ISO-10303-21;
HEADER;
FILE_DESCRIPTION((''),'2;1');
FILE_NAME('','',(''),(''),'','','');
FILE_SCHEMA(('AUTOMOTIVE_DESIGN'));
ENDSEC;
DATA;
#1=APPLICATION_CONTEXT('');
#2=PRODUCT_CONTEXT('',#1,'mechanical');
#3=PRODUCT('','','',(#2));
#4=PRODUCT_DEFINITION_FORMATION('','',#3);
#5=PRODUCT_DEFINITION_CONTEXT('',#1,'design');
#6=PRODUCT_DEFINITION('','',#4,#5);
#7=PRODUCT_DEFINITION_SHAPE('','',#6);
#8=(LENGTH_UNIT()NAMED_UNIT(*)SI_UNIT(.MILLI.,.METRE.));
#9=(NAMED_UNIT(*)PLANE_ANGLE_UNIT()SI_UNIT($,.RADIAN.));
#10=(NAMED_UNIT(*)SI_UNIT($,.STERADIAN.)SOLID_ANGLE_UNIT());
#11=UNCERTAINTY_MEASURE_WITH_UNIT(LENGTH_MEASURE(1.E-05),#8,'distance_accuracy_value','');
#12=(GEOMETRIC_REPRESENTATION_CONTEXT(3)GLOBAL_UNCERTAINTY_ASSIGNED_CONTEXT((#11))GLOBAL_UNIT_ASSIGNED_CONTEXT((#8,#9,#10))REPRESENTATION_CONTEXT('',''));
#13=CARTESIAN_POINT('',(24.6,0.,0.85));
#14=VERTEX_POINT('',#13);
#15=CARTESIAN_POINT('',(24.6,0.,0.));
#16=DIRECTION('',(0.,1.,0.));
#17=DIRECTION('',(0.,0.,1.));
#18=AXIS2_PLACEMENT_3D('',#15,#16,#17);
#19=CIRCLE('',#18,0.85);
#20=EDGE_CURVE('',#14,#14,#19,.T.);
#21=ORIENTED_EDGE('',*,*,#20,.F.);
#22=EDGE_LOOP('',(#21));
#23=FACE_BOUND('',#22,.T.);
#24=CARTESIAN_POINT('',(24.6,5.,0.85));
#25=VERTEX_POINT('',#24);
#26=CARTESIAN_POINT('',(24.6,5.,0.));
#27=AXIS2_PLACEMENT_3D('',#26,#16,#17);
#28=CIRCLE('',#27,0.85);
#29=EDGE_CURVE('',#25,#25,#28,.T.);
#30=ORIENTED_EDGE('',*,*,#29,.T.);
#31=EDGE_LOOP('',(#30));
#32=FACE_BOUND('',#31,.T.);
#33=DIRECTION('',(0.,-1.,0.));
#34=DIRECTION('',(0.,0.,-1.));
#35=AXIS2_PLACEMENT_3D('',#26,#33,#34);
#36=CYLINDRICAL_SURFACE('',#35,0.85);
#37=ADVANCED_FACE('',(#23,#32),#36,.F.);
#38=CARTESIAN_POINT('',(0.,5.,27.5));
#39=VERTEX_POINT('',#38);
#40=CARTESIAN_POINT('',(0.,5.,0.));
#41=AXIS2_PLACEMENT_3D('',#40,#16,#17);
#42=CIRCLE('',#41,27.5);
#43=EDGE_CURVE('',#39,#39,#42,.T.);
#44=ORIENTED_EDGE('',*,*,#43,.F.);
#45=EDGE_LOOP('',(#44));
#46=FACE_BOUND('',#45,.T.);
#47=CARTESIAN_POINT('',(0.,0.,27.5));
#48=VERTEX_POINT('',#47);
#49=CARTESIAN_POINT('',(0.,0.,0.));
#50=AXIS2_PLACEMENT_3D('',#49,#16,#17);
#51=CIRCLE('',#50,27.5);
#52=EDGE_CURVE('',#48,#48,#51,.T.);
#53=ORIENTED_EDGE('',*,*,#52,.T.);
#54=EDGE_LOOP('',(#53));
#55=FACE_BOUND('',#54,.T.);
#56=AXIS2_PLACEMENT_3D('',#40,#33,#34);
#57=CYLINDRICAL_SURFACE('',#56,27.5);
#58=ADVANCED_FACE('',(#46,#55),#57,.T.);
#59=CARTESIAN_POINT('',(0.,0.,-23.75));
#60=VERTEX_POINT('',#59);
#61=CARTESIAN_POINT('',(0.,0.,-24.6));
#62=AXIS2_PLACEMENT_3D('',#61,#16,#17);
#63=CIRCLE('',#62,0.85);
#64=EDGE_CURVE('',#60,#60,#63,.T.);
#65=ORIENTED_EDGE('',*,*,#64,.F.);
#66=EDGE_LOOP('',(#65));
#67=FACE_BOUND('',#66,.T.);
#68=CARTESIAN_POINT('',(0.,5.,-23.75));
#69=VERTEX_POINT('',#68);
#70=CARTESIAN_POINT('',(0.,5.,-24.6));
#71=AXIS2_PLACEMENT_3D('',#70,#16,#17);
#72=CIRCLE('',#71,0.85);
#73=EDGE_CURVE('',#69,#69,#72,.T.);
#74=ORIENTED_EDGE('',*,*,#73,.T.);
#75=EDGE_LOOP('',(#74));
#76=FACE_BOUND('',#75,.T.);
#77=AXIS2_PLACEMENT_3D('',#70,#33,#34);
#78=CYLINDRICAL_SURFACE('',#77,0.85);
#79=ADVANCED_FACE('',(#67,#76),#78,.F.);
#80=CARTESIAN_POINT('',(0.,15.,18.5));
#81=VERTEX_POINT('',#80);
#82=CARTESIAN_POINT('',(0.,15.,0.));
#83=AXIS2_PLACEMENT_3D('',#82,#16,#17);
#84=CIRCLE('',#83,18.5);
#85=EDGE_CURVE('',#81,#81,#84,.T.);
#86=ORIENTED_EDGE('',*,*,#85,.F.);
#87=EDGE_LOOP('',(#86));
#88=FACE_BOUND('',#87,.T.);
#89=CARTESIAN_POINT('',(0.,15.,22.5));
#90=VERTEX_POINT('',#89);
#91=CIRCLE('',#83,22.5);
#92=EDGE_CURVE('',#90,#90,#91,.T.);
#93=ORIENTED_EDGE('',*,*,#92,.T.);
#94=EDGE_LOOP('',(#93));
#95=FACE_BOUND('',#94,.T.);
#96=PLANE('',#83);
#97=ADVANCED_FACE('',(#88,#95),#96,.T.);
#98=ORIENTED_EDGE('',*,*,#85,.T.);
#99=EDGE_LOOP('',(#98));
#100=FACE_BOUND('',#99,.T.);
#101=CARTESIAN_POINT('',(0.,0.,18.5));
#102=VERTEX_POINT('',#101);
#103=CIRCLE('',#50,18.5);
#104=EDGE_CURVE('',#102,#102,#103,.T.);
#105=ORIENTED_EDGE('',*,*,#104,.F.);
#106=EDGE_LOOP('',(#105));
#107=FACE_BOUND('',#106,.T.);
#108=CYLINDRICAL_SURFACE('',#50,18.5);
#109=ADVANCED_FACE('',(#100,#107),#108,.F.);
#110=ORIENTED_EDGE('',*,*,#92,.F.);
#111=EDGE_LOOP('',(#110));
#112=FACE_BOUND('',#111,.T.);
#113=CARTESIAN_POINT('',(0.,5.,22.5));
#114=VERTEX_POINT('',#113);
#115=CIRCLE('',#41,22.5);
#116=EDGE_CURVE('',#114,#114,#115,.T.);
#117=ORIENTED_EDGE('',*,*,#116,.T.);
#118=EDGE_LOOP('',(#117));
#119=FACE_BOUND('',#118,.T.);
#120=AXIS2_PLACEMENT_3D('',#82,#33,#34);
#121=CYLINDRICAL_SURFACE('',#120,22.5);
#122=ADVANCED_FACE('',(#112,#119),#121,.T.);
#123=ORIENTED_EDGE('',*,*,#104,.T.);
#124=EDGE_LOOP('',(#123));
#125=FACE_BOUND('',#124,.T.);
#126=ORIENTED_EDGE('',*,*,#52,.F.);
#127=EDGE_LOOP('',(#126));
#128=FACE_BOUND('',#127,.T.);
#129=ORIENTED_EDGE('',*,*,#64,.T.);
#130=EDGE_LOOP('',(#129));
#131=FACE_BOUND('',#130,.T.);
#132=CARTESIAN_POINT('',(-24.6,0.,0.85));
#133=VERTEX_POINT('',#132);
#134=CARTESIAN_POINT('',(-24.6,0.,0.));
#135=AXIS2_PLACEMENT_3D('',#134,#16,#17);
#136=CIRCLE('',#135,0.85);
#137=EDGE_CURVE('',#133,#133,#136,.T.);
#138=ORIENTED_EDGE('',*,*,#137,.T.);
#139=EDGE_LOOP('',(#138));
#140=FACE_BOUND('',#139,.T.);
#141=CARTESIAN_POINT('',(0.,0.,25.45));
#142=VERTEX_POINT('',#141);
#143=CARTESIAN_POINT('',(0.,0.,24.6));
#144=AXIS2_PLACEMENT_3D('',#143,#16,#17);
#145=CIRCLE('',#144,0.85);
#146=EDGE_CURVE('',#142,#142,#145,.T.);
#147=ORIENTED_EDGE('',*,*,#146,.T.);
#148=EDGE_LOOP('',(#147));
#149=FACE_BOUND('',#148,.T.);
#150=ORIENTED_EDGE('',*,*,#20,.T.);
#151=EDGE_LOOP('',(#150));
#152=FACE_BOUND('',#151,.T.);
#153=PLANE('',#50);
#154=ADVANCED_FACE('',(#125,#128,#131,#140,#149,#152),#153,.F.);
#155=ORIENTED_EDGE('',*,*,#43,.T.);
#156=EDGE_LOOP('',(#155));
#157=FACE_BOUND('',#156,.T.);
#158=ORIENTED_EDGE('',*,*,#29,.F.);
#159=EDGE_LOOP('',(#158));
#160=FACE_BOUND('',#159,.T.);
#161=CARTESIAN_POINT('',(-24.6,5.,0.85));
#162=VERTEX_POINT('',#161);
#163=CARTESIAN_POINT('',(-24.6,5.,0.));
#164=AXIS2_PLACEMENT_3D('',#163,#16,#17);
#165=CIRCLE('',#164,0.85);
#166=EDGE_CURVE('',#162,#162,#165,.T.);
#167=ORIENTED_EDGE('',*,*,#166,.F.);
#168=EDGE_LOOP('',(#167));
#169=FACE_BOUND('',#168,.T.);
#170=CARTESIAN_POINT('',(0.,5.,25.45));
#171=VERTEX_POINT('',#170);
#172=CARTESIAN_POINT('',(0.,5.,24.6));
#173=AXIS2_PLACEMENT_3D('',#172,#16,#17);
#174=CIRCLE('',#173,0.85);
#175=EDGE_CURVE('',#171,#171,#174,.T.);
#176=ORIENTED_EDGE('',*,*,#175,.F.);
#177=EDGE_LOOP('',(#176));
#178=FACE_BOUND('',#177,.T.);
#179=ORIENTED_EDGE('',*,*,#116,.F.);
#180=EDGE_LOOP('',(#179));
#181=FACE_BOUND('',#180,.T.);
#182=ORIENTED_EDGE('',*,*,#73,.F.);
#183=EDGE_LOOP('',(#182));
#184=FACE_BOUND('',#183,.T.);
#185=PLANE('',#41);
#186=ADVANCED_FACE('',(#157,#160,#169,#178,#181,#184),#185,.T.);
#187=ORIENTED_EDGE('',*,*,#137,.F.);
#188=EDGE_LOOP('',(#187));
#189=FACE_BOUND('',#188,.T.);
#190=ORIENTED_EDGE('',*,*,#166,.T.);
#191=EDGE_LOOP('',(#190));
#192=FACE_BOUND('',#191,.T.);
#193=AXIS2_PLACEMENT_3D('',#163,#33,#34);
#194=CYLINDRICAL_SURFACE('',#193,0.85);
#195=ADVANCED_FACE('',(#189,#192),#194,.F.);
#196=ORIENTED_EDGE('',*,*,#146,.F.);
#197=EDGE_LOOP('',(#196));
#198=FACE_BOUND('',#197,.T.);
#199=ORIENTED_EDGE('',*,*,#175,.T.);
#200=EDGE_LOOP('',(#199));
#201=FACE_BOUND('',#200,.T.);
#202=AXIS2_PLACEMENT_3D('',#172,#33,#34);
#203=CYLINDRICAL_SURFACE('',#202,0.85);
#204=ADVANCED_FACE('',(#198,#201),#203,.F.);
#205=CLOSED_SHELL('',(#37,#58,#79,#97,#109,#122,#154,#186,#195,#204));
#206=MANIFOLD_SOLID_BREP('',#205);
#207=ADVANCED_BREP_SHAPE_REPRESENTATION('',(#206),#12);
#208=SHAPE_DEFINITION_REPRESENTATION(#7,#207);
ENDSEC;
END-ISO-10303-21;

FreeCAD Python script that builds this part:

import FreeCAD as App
import Part
import Sketcher
from FreeCAD import Vector
Q = App.Units.Quantity

doc = App.newDocument("Part")
params = doc.addObject("Spreadsheet::Sheet", "Params")
for row, (alias, value) in enumerate([
    ("sketch1_diameter", "55 mm"),
    ("sketch1_diameter2", "1.7 mm"),
    ("pad1_length", "5 mm"),
    ("sketch2_diameter", "45 mm"),
    ("pad2_length", "10 mm"),
    ("sketch3_diameter", "37 mm"),
], start=1):
    params.set(f"A{row}", alias)
    params.set(f"B{row}", "=" + value)
    params.setAlias(f"B{row}", alias)

body = doc.addObject("PartDesign::Body", "Body")

# Sketch on XZ plane
sketch1 = body.newObject("Sketcher::SketchObject", "Sketch")
sketch1.AttachmentSupport = (doc.getObject("XZ_Plane"), [""])
sketch1.MapMode = "FlatFace"
sketch1.addGeometry(Part.Circle(Vector(0, 0, 0), Vector(0, 0, 1), 27.5), False)
sketch1.addGeometry(Part.Circle(Vector(-24.6, 0, 0), Vector(0, 0, 1), 0.8), False)
sketch1.addGeometry(Part.Circle(Vector(0, -24.6, 0), Vector(0, 0, 1), 0.8), False)
sketch1.addGeometry(Part.Circle(Vector(0, 24.6, 0), Vector(0, 0, 1), 0.8), False)
sketch1.addGeometry(Part.Circle(Vector(24.6, 0, 0), Vector(0, 0, 1), 0.8), False)
sketch1.addConstraint(Sketcher.Constraint("Coincident", 0, 3, -1, 1))
sketch1.addConstraint(Sketcher.Constraint("Equal", 1, 2))
sketch1.addConstraint(Sketcher.Constraint("Equal", 2, 3))
sketch1.addConstraint(Sketcher.Constraint("Equal", 3, 4))
sketch1.addConstraint(Sketcher.Constraint("Symmetric", 2, 3, 3, 3, -1, 1))
sketch1.addConstraint(Sketcher.Constraint("Symmetric", 1, 3, 4, 3, -1, 1))
sketch1.addConstraint(Sketcher.Constraint("PointOnObject", 1, 3, -1))
sketch1.addConstraint(Sketcher.Constraint("PointOnObject", 2, 3, -2))
sketch1.addConstraint(Sketcher.Constraint("Diameter", 0, Q("55 mm")))
sketch1.addConstraint(Sketcher.Constraint("Diameter", 1, Q("1.7 mm")))
sketch1.addConstraint(Sketcher.Constraint("DistanceX", 1, 3, -1, 1, Q("24.6 mm")))
sketch1.addConstraint(Sketcher.Constraint("DistanceY", 2, 3, -1, 1, Q("24.6 mm")))
sketch1.setExpression("Constraints[8]", "Params.sketch1_diameter")
sketch1.setExpression("Constraints[9]", "Params.sketch1_diameter2")
pad1 = body.newObject("PartDesign::Pad", "Pad")
pad1.Profile = sketch1
pad1.setExpression("Length", "Params.pad1_length")
pad1.Reversed = True

# Sketch on XZ plane
sketch2 = body.newObject("Sketcher::SketchObject", "Sketch001")
sketch2.AttachmentSupport = (doc.getObject("XZ_Plane"), [""])
sketch2.MapMode = "FlatFace"
sketch2.AttachmentOffset = App.Placement(Vector(0, 0, -5), App.Rotation())
sketch2.addGeometry(Part.Circle(Vector(0, 0, 0), Vector(0, 0, 1), 22), False)
sketch2.addConstraint(Sketcher.Constraint("Coincident", 0, 3, -1, 1))
sketch2.addConstraint(Sketcher.Constraint("Diameter", 0, Q("45 mm")))
sketch2.setExpression("Constraints[1]", "Params.sketch2_diameter")
pad2 = body.newObject("PartDesign::Pad", "Pad001")
pad2.Profile = sketch2
pad2.setExpression("Length", "Params.pad2_length")
pad2.Reversed = True

# Sketch on XZ plane
sketch3 = body.newObject("Sketcher::SketchObject", "Sketch002")
sketch3.AttachmentSupport = (doc.getObject("XZ_Plane"), [""])
sketch3.MapMode = "FlatFace"
sketch3.AttachmentOffset = App.Placement(Vector(0, 0, -15), App.Rotation())
sketch3.addGeometry(Part.Circle(Vector(0, 0, 0), Vector(0, 0, 1), 18), False)
sketch3.addConstraint(Sketcher.Constraint("Coincident", 0, 3, -1, 1))
sketch3.addConstraint(Sketcher.Constraint("Diameter", 0, Q("37 mm")))
sketch3.setExpression("Constraints[1]", "Params.sketch3_diameter")
pocket1 = body.newObject("PartDesign::Pocket", "Pocket")
pocket1.Profile = sketch3
pocket1.Type = "ThroughAll"
pocket1.Reversed = True

doc.recompute()
